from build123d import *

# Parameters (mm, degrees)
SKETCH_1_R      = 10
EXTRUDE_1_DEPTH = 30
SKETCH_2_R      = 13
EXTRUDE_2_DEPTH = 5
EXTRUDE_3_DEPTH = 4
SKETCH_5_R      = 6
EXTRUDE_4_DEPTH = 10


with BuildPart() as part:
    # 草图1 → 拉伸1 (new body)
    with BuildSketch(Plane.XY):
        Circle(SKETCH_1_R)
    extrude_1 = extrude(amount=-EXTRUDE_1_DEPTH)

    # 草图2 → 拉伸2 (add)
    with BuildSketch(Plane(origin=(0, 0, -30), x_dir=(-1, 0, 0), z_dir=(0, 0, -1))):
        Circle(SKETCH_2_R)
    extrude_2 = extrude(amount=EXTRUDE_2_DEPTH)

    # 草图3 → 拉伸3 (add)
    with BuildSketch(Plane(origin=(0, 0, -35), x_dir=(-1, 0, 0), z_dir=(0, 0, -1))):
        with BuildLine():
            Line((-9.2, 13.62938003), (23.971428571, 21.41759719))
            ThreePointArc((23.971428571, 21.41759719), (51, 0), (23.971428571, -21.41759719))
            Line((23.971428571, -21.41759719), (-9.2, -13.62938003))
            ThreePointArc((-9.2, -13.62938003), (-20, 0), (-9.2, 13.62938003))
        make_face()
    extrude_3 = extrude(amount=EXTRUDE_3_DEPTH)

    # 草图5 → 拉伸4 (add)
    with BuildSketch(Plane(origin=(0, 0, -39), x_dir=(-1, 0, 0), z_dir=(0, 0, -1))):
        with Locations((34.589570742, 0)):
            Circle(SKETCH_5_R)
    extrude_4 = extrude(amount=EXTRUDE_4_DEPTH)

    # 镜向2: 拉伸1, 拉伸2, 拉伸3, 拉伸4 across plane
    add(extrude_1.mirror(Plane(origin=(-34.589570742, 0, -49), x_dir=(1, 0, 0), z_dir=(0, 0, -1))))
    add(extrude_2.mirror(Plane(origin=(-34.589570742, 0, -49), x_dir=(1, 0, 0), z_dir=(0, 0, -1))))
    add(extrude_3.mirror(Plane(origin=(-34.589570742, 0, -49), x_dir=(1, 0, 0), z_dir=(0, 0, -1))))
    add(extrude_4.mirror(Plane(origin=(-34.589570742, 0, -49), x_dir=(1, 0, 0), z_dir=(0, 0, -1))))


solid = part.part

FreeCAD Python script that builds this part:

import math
import FreeCAD as App
import Part
import Sketcher

doc = App.newDocument("Part")
body = doc.addObject("PartDesign::Body", "Body")

# Sketch on XY plane
sketch1 = body.newObject("Sketcher::SketchObject", "Sketch")
sketch1.AttachmentSupport = (doc.getObject("XY_Plane"), [""])
sketch1.MapMode = "FlatFace"
sketch1.addGeometry(Part.Circle(App.Vector(0, 0, 0), App.Vector(0, 0, 1), 10), False)
sketch1.addConstraint([
    Sketcher.Constraint("Coincident", 0, 3, -1, 1),
    Sketcher.Constraint("Diameter", 0, 20.0),
])
pad1 = body.newObject("PartDesign::Pad", "Pad")
pad1.Profile = sketch1
pad1.Length = 30
pad1.Reversed = True

# Sketch on XY plane
sketch2 = body.newObject("Sketcher::SketchObject", "Sketch001")
sketch2.AttachmentSupport = (doc.getObject("XY_Plane"), [""])
sketch2.MapMode = "FlatFace"
sketch2.AttachmentOffset = App.Placement(App.Vector(0, 0, -30), App.Rotation())
sketch2.addGeometry(Part.Circle(App.Vector(0, 0, 0), App.Vector(0, 0, 1), 13), False)
sketch2.addConstraint([
    Sketcher.Constraint("Coincident", 0, 3, -1, 1),
    Sketcher.Constraint("Diameter", 0, 26.0),
])
pad2 = body.newObject("PartDesign::Pad", "Pad001")
pad2.Profile = sketch2
pad2.Length = 5
pad2.Reversed = True

# Sketch on XY plane
sketch3 = body.newObject("Sketcher::SketchObject", "Sketch002")
sketch3.AttachmentSupport = (doc.getObject("XY_Plane"), [""])
sketch3.MapMode = "FlatFace"
sketch3.AttachmentOffset = App.Placement(App.Vector(0, 0, -35), App.Rotation())
sketch3.addGeometry([
    Part.LineSegment(App.Vector(-24, 21, 0), App.Vector(9, 14, 0)),
    Part.ArcOfCircle(Part.Circle(App.Vector(6, 0, 0), App.Vector(0, 0, 1), 14), math.radians(-77), math.radians(77)),
    Part.LineSegment(App.Vector(9, -14, 0), App.Vector(-24, -21, 0)),
    Part.ArcOfCircle(Part.Circle(App.Vector(-29, 0, 0), App.Vector(0, 0, 1), 22), math.radians(77), math.radians(283)),
], False)
sketch3.addConstraint([
    Sketcher.Constraint("Tangent", 0, 2, 1, 2),
    Sketcher.Constraint("Tangent", 1, 1, 2, 1),
    Sketcher.Constraint("Tangent", 2, 2, 3, 2),
    Sketcher.Constraint("Tangent", 3, 1, 0, 1),
    Sketcher.Constraint("Symmetric", 0, 2, 1, 1, -1),
    Sketcher.Constraint("Radius", 1, 14.0),
    Sketcher.Constraint("Radius", 3, 22.0),
    Sketcher.Constraint("DistanceX", -1, 1, 1, 3, 6.0),
    Sketcher.Constraint("DistanceX", 3, 3, -1, 1, 29.0),
])
pad3 = body.newObject("PartDesign::Pad", "Pad002")
pad3.Profile = sketch3
pad3.Length = 4
pad3.Reversed = True

# Sketch on XY plane
sketch4 = body.newObject("Sketcher::SketchObject", "Sketch003")
sketch4.AttachmentSupport = (doc.getObject("XY_Plane"), [""])
sketch4.MapMode = "FlatFace"
sketch4.AttachmentOffset = App.Placement(App.Vector(0, 0, -39), App.Rotation())
sketch4.addGeometry(Part.Circle(App.Vector(-35, 0, 0), App.Vector(0, 0, 1), 6), False)
sketch4.addConstraint([
    Sketcher.Constraint("PointOnObject", 0, 3, -1),
    Sketcher.Constraint("Diameter", 0, 12.0),
    Sketcher.Constraint("DistanceX", 0, 3, -1, 1, 34.589571),
])
pad4 = body.newObject("PartDesign::Pad", "Pad003")
pad4.Profile = sketch4
pad4.Length = 10
pad4.Reversed = True
doc.recompute()

datumplane = body.newObject("PartDesign::Plane", "DatumPlane")
datumplane.AttachmentSupport = (doc.getObject("XY_Plane"), [""])
datumplane.MapMode = "FlatFace"
datumplane.AttachmentOffset = App.Placement(App.Vector(0, 0, -49), App.Rotation())
mirrored = body.newObject("PartDesign::Mirrored", "Mirrored")
mirrored.Originals = [pad1, pad2, pad3, pad4]
mirrored.MirrorPlane = (datumplane, [""])
body.Tip = mirrored

doc.recompute()
